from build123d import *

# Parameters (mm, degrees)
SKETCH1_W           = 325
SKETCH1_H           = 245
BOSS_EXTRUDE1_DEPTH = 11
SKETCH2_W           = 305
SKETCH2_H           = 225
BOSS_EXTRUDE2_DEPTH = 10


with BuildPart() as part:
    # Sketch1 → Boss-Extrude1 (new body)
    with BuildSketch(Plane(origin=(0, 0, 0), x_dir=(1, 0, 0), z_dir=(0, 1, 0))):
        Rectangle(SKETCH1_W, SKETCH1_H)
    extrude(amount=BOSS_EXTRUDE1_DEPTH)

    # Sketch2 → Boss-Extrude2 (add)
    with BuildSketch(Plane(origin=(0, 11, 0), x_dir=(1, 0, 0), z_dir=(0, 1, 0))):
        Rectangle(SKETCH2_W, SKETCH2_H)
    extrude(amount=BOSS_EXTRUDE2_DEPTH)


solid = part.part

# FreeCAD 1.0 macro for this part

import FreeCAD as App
import Part
import Sketcher
from FreeCAD import Vector

doc = App.newDocument("Part")
body = doc.addObject("PartDesign::Body", "Body")

# Sketch on XZ plane
sketch1 = body.newObject("Sketcher::SketchObject", "Sketch")
sketch1.AttachmentSupport = (doc.getObject("XZ_Plane"), [""])
sketch1.MapMode = "FlatFace"
sketch1.addGeometry([
    Part.LineSegment(Vector(-162, -122, 0), Vector(-162, 122, 0)),
    Part.LineSegment(Vector(-162, 122, 0), Vector(162, 122, 0)),
    Part.LineSegment(Vector(162, 122, 0), Vector(162, -122, 0)),
    Part.LineSegment(Vector(162, -122, 0), Vector(-162, -122, 0)),
], False)
sketch1.addConstraint([
    Sketcher.Constraint("Coincident", 0, 2, 1, 1),
    Sketcher.Constraint("Coincident", 1, 2, 2, 1),
    Sketcher.Constraint("Coincident", 2, 2, 3, 1),
    Sketcher.Constraint("Coincident", 3, 2, 0, 1),
    Sketcher.Constraint("Vertical", 0),
    Sketcher.Constraint("Horizontal", 1),
    Sketcher.Constraint("Vertical", 2),
    Sketcher.Constraint("Horizontal", 3),
    Sketcher.Constraint("Symmetric", 0, 2, 2, 2, -1, 1),
    Sketcher.Constraint("DistanceX", 1, 1, 1, 2, 325.0),
    Sketcher.Constraint("DistanceY", 0, 1, 0, 2, 245.0),
])
pad1 = body.newObject("PartDesign::Pad", "Pad")
pad1.Profile = sketch1
pad1.Length = 11
pad1.Reversed = True

# Sketch on XZ plane
sketch2 = body.newObject("Sketcher::SketchObject", "Sketch001")
sketch2.AttachmentSupport = (doc.getObject("XZ_Plane"), [""])
sketch2.MapMode = "FlatFace"
sketch2.AttachmentOffset = App.Placement(Vector(0, 0, -11), App.Rotation())
sketch2.addGeometry([
    Part.LineSegment(Vector(-152, -112, 0), Vector(-152, 112, 0)),
    Part.LineSegment(Vector(-152, 112, 0), Vector(152, 112, 0)),
    Part.LineSegment(Vector(152, 112, 0), Vector(152, -112, 0)),
    Part.LineSegment(Vector(152, -112, 0), Vector(-152, -112, 0)),
], False)
sketch2.addConstraint([
    Sketcher.Constraint("Coincident", 0, 2, 1, 1),
    Sketcher.Constraint("Coincident", 1, 2, 2, 1),
    Sketcher.Constraint("Coincident", 2, 2, 3, 1),
    Sketcher.Constraint("Coincident", 3, 2, 0, 1),
    Sketcher.Constraint("Vertical", 0),
    Sketcher.Constraint("Horizontal", 1),
    Sketcher.Constraint("Vertical", 2),
    Sketcher.Constraint("Horizontal", 3),
    Sketcher.Constraint("Symmetric", 0, 2, 2, 2, -1, 1),
    Sketcher.Constraint("DistanceX", 1, 1, 1, 2, 305.0),
    Sketcher.Constraint("DistanceY", 0, 1, 0, 2, 225.0),
])
pad2 = body.newObject("PartDesign::Pad", "Pad001")
pad2.Profile = sketch2
pad2.Length = 10
pad2.Reversed = True

doc.recompute()
